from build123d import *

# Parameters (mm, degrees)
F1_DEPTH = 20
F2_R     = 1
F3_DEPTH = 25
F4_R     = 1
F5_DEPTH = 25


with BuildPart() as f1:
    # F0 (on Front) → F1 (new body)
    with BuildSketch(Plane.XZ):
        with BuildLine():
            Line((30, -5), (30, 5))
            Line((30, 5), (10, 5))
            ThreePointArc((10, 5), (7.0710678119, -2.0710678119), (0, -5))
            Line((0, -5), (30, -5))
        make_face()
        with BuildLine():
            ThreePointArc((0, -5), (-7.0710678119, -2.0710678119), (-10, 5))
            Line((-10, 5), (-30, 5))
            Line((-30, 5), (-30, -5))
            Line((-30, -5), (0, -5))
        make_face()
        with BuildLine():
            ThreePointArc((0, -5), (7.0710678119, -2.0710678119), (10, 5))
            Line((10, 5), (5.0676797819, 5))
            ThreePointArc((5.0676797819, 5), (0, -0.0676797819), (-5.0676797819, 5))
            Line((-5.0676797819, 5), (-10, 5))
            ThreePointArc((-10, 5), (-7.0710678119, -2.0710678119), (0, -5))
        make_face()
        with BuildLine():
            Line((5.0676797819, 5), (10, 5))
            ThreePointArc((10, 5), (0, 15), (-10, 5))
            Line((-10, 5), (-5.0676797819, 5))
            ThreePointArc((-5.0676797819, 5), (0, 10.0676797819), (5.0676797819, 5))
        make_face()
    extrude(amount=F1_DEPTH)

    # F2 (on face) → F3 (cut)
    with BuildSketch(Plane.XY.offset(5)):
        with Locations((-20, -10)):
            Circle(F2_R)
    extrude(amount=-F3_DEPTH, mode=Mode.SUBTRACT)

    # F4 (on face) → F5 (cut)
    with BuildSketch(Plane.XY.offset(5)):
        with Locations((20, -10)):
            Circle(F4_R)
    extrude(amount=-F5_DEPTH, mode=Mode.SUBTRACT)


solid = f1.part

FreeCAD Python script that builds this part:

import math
import FreeCAD as App
import Part
import Sketcher
from FreeCAD import Vector

doc = App.newDocument("Part")
body = doc.addObject("PartDesign::Body", "Body")

# Sketch on XZ plane
sketch1 = doc.addObject("Sketcher::SketchObject", "Sketch")
body.addObject(sketch1)
sketch1.AttachmentSupport = (doc.XZ_Plane, [""])
sketch1.MapMode = "FlatFace"
sketch1.addGeometry([
    Part.LineSegment(Vector(30, -5, 0), Vector(30, 5, 0)),  # 0
    Part.LineSegment(Vector(30, 5, 0), Vector(10, 5, 0)),  # 1
    Part.ArcOfCircle(Part.Circle(Vector(0, 5, 0), Vector(0, 0, 1), 10), math.radians(0), math.radians(180)),  # 2
    Part.LineSegment(Vector(-10, 5, 0), Vector(-30, 5, 0)),  # 3
    Part.LineSegment(Vector(-30, 5, 0), Vector(-30, -5, 0)),  # 4
    Part.LineSegment(Vector(-30, -5, 0), Vector(30, -5, 0)),  # 5
    Part.Circle(Vector(0, 5, 0), Vector(0, 0, 1), 5),  # 6
], False)
sketch1.addConstraint([
    Sketcher.Constraint("Coincident", 0, 2, 1, 1),
    Sketcher.Constraint("Coincident", 1, 2, 2, 1),
    Sketcher.Constraint("Coincident", 2, 2, 3, 1),
    Sketcher.Constraint("Coincident", 3, 2, 4, 1),
    Sketcher.Constraint("Coincident", 4, 2, 5, 1),
    Sketcher.Constraint("Coincident", 5, 2, 0, 1),
    Sketcher.Constraint("Vertical", 0),
    Sketcher.Constraint("Horizontal", 1),
    Sketcher.Constraint("Horizontal", 3),
    Sketcher.Constraint("Vertical", 4),
    Sketcher.Constraint("Horizontal", 5),
    Sketcher.Constraint("Coincident", 6, 3, 2, 3),
    Sketcher.Constraint("Symmetric", 0, 2, 4, 2, -1, 1),
    Sketcher.Constraint("Symmetric", 1, 2, 2, 2, -2),
    Sketcher.Constraint("Horizontal", 6, 3, 0, 2),
    Sketcher.Constraint("Radius", 2, 10.0),
    Sketcher.Constraint("DistanceX", 1, 2, 1, 1, 20.0),
    Sketcher.Constraint("DistanceY", 0, 1, 0, 2, 10.0),
    Sketcher.Constraint("Diameter", 6, 10.13536),
])
pad1 = doc.addObject("PartDesign::Pad", "Pad")
body.addObject(pad1)
pad1.Profile = sketch1
pad1.Length = 20

# Sketch on XY plane
sketch2 = doc.addObject("Sketcher::SketchObject", "Sketch001")
body.addObject(sketch2)
sketch2.AttachmentSupport = (doc.XY_Plane, [""])
sketch2.MapMode = "FlatFace"
sketch2.AttachmentOffset = App.Placement(Vector(0, 0, 5), App.Rotation())
sketch2.addGeometry(Part.Circle(Vector(-20, -10, 0), Vector(0, 0, 1), 1), False)
sketch2.addConstraint([
    Sketcher.Constraint("Diameter", 0, 2.0),
    Sketcher.Constraint("DistanceX", 0, 3, -1, 1, 20.0),
    Sketcher.Constraint("DistanceY", 0, 3, -1, 1, 10.0),
])
pocket1 = doc.addObject("PartDesign::Pocket", "Pocket")
body.addObject(pocket1)
pocket1.Profile = sketch2
pocket1.Length = 25

# Sketch on XY plane
sketch3 = doc.addObject("Sketcher::SketchObject", "Sketch002")
body.addObject(sketch3)
sketch3.AttachmentSupport = (doc.XY_Plane, [""])
sketch3.MapMode = "FlatFace"
sketch3.AttachmentOffset = App.Placement(Vector(0, 0, 5), App.Rotation())
sketch3.addGeometry(Part.Circle(Vector(20, -10, 0), Vector(0, 0, 1), 1), False)
sketch3.addConstraint([
    Sketcher.Constraint("Diameter", 0, 2.0),
    Sketcher.Constraint("DistanceX", -1, 1, 0, 3, 20.0),
    Sketcher.Constraint("DistanceY", 0, 3, -1, 1, 10.0),
])
pocket2 = doc.addObject("PartDesign::Pocket", "Pocket001")
body.addObject(pocket2)
pocket2.Profile = sketch3
pocket2.Length = 25

doc.recompute()
